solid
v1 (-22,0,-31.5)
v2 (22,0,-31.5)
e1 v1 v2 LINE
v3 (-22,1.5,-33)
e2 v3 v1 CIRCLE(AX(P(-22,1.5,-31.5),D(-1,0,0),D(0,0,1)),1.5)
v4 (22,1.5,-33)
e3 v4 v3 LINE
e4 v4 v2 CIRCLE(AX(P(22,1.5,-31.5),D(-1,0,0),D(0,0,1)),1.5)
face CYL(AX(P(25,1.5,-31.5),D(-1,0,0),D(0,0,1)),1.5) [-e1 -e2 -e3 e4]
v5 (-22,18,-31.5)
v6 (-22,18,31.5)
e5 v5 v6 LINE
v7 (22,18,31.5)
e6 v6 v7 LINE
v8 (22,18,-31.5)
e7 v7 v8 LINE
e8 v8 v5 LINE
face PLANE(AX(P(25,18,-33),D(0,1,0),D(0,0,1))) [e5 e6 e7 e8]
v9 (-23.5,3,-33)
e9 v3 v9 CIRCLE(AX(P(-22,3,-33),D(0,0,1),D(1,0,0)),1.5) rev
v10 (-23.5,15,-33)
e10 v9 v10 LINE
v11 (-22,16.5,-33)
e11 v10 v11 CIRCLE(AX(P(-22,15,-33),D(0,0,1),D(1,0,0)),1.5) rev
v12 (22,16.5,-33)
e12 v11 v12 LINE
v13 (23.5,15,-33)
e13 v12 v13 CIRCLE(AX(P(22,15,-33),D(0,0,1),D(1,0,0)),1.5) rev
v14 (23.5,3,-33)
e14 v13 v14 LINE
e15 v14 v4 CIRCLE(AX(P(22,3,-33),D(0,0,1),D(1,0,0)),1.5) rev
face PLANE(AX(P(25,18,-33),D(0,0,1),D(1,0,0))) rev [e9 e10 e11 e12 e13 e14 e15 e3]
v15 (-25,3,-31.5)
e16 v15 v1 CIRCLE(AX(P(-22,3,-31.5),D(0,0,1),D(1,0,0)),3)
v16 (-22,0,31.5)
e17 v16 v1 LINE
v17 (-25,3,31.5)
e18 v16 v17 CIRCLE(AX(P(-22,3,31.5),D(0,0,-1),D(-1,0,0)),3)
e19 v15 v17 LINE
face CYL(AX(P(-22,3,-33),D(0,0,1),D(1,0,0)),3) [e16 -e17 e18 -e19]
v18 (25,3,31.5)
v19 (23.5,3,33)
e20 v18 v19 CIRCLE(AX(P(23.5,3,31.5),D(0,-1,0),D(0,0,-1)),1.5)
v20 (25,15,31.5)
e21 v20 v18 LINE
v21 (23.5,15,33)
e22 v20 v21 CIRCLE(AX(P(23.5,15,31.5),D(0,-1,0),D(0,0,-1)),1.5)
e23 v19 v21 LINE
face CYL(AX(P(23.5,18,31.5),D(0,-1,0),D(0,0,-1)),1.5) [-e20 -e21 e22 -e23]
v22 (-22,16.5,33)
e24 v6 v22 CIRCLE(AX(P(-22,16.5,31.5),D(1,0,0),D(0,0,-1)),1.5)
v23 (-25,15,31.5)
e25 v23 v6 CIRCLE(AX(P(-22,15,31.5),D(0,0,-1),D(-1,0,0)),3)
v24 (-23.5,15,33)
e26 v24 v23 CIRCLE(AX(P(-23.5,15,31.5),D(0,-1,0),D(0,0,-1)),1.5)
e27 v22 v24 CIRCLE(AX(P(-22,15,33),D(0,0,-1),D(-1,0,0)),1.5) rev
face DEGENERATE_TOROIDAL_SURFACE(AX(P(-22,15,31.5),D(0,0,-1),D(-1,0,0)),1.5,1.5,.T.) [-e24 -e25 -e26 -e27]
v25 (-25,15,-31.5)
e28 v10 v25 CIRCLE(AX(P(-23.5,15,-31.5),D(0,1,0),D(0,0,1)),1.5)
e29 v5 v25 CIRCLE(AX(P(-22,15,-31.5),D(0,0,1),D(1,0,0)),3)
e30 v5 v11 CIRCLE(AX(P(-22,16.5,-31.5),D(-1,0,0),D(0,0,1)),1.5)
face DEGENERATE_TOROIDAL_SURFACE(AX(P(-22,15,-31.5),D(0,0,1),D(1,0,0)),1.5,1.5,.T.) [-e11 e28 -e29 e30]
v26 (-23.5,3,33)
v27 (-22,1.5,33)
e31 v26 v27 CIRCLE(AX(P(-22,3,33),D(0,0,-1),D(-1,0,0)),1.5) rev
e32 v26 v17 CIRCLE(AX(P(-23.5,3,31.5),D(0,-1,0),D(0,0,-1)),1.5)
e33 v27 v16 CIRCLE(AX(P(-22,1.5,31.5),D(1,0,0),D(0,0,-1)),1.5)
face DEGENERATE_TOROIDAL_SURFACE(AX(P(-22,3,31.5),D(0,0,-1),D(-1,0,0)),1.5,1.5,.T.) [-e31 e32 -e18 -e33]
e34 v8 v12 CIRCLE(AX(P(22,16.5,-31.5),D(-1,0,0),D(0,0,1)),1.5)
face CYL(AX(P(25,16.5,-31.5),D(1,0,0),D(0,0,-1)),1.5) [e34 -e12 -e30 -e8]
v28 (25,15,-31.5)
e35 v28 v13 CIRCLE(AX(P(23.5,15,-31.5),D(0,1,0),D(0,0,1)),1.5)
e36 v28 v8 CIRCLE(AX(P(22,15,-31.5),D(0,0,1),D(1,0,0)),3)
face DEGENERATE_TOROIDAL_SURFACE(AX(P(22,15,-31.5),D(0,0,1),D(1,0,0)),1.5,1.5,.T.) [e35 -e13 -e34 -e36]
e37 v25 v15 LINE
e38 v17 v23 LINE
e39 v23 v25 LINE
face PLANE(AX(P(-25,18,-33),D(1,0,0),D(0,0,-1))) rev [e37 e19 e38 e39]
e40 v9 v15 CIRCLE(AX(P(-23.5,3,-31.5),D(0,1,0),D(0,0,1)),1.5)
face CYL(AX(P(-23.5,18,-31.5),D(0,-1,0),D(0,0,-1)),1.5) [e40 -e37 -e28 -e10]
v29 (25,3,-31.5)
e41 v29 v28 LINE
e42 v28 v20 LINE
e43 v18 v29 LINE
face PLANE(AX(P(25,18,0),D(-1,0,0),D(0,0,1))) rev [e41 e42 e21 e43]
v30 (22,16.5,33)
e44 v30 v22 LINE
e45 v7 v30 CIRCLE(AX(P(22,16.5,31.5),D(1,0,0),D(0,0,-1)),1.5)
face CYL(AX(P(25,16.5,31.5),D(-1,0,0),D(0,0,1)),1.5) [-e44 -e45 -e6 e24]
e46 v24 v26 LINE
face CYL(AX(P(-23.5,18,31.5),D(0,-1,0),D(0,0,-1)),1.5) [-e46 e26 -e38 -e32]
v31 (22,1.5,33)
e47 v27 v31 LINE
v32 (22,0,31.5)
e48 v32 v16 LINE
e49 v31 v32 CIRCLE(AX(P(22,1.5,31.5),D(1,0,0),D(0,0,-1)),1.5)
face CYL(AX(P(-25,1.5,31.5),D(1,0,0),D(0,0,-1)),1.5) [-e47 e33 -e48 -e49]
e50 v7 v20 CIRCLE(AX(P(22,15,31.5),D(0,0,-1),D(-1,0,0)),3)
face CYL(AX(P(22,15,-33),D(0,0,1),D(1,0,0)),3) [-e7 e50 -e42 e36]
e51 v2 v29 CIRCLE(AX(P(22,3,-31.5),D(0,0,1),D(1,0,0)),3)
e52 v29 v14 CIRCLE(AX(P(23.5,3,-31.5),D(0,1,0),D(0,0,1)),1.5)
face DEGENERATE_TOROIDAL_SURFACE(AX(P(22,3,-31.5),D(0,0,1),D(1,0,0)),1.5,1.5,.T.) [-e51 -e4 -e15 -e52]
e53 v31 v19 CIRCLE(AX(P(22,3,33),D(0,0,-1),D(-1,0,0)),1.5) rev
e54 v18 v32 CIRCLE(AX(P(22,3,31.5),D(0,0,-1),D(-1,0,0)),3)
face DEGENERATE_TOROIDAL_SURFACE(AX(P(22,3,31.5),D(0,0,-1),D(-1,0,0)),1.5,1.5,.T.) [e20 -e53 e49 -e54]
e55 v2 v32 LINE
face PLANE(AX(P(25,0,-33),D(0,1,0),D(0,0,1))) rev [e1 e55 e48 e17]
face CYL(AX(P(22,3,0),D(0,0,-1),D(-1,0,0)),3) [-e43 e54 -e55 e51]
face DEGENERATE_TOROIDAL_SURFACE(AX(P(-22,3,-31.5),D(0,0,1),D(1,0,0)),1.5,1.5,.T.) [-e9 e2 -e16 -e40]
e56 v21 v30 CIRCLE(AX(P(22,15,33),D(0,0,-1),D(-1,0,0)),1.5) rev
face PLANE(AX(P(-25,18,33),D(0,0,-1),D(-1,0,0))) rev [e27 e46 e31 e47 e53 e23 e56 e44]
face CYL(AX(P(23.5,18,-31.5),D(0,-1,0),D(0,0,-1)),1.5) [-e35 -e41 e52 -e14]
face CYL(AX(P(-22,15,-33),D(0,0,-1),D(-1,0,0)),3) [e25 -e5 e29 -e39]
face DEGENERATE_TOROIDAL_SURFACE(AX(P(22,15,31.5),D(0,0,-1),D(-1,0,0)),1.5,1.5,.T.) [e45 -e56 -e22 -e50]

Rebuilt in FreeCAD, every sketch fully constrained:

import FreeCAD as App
import Part
import Sketcher
from FreeCAD import Vector
Q = App.Units.Quantity


def edges_at(feature, points):
    """Names of the edges that pass closest to the given points."""
    edges = feature.Shape.Edges
    near = lambda p: min(range(len(edges)), key=lambda i: edges[i].distToShape(Part.Vertex(*p))[0])
    return sorted({f"Edge{near(p) + 1}" for p in points})

doc = App.newDocument("Part")
body = doc.addObject("PartDesign::Body", "Body")

sketch1 = doc.addObject("Sketcher::SketchObject", "Sketch")
body.addObject(sketch1)
sketch1.AttachmentSupport = (doc.XZ_Plane, [""])
sketch1.MapMode = "FlatFace"
sketch1.addGeometry([
    Part.LineSegment(Vector(25, -33, 0), Vector(-25, -33, 0)),
    Part.LineSegment(Vector(-25, -33, 0), Vector(-25, 33, 0)),
    Part.LineSegment(Vector(-25, 33, 0), Vector(25, 33, 0)),
    Part.LineSegment(Vector(25, 33, 0), Vector(25, -33, 0)),
], False)
sketch1.addConstraint([
    Sketcher.Constraint("Coincident", 0, 2, 1, 1),
    Sketcher.Constraint("Coincident", 1, 2, 2, 1),
    Sketcher.Constraint("Coincident", 2, 2, 3, 1),
    Sketcher.Constraint("Coincident", 3, 2, 0, 1),
    Sketcher.Constraint("Horizontal", 0),
    Sketcher.Constraint("Vertical", 1),
    Sketcher.Constraint("Horizontal", 2),
    Sketcher.Constraint("Vertical", 3),
    Sketcher.Constraint("Symmetric", 0, 2, 2, 2, -1, 1),
    Sketcher.Constraint("DistanceX", 0, 2, 0, 1, Q("50 mm")),
    Sketcher.Constraint("DistanceY", 1, 1, 1, 2, Q("66 mm")),
])
pad1 = doc.addObject("PartDesign::Pad", "Pad")
body.addObject(pad1)
pad1.Profile = sketch1
pad1.Length = 18
pad1.Reversed = True
doc.recompute()

fillet = doc.addObject("PartDesign::Fillet", "Fillet")
body.addObject(fillet)
fillet.Base = (pad1, edges_at(pad1, [
    (-25, 18, 0),
    (25, 18, 0),
    (-25, 0, 0),
    (25, 0, 0),
]))
fillet.Radius = 3
doc.recompute()

fillet2 = doc.addObject("PartDesign::Fillet", "Fillet001")
body.addObject(fillet2)
fillet2.Base = (fillet, edges_at(fillet, [
    (0, 18, -33),
    (0, 18, 33),
    (0, 0, -33),
    (-25, 9, -33),
    (25, 9, -33),
    (24.121, 0.879, -33),
    (-24.121, 0.879, -33),
    (-24.121, 17.121, -33),
    (24.121, 17.121, -33),
    (25, 9, 33),
    (0, 0, 33),
    (-25, 9, 33),
    (24.121, 0.879, 33),
    (-24.121, 0.879, 33),
    (-24.121, 17.121, 33),
    (24.121, 17.121, 33),
]))
fillet2.Radius = 1.5

doc.recompute()
